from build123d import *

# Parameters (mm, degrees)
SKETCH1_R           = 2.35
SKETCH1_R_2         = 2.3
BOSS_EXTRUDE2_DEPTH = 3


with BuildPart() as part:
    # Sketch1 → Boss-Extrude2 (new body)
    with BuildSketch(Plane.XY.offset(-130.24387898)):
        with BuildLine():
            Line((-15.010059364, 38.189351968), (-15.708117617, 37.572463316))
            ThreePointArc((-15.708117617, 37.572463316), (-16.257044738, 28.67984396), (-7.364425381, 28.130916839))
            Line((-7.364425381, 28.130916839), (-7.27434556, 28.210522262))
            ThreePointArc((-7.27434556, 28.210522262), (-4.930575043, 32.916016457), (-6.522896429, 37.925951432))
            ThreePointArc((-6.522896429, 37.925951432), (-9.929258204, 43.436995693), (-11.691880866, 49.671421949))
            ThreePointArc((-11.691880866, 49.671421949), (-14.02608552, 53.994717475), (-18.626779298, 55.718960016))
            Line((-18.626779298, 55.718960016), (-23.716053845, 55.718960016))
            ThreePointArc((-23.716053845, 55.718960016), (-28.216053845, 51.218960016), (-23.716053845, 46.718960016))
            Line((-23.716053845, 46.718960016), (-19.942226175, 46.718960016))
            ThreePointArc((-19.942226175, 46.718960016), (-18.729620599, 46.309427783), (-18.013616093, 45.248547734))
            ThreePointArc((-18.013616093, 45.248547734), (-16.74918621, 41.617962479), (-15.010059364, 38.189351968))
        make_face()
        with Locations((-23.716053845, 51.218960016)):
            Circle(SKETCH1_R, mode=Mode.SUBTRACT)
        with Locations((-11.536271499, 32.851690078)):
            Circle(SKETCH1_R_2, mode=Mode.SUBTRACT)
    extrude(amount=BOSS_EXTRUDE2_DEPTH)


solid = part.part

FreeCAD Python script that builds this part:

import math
import FreeCAD as App
import Part
import Sketcher

V = App.Vector

doc = App.newDocument("Part")
body = doc.addObject("PartDesign::Body", "Body")

# Sketch on XY plane
sketch1 = doc.addObject("Sketcher::SketchObject", "Sketch")
body.addObject(sketch1)
sketch1.AttachmentSupport = (doc.XY_Plane, [""])
sketch1.MapMode = "FlatFace"
sketch1.AttachmentOffset = App.Placement(V(0, 0, -130.243879), App.Rotation())
sketch1.addGeometry([
    Part.LineSegment(V(-15.010059, 38.189352, 0), V(-15.708118, 37.572463, 0)),  # 0
    Part.ArcOfCircle(Part.Circle(V(-11.536271, 32.85169, 0), V(0, 0, 1), 6.3), math.radians(131.467705), math.radians(311.467705)),  # 1
    Part.LineSegment(V(-7.364425, 28.130917, 0), V(-7.274346, 28.210522, 0)),  # 2
    Part.ArcOfCircle(Part.Circle(V(-11.90973, 33.455826, 0), V(0, 0, 1), 7), math.radians(-48.532295), math.radians(39.686712)),  # 3
    Part.ArcOfCircle(Part.Circle(V(11.463728, 52.85169, 0), V(0, 0, 1), 23.372983), math.radians(-172.179735), math.radians(-140.313288)),  # 4
    Part.ArcOfCircle(Part.Circle(V(-18.626779, 48.71896, 0), V(0, 0, 1), 7), math.radians(7.820265), math.radians(90)),  # 5
    Part.LineSegment(V(-18.626779, 55.71896, 0), V(-23.716054, 55.71896, 0)),  # 6
    Part.ArcOfCircle(Part.Circle(V(-23.716054, 51.21896, 0), V(0, 0, 1), 4.5), math.radians(90), math.radians(270)),  # 7
    Part.LineSegment(V(-23.716054, 46.71896, 0), V(-19.942226, 46.71896, 0)),  # 8
    Part.ArcOfCircle(Part.Circle(V(-19.942226, 44.71896, 0), V(0, 0, 1), 2), math.radians(15.354704), math.radians(90)),  # 9
    Part.ArcOfCircle(Part.Circle(V(9.613728, 52.834893, 0), V(0, 0, 1), 28.650005), math.radians(-164.645296), math.radians(-149.257)),  # 10
    Part.Circle(V(-11.536271, 32.85169, 0), V(0, 0, 1), 2.3),  # 11
    Part.Circle(V(-23.716054, 51.21896, 0), V(0, 0, 1), 2.35),  # 12
], False)
sketch1.addConstraint([
    Sketcher.Constraint("Tangent", 0, 2, 1, 1),
    Sketcher.Constraint("Tangent", 1, 2, 2, 1),
    Sketcher.Constraint("Tangent", 2, 2, 3, 1),
    Sketcher.Constraint("Tangent", 3, 2, 4, 2),
    Sketcher.Constraint("Tangent", 4, 1, 5, 1),
    Sketcher.Constraint("Tangent", 5, 2, 6, 1),
    Sketcher.Constraint("Tangent", 6, 2, 7, 1),
    Sketcher.Constraint("Tangent", 7, 2, 8, 1),
    Sketcher.Constraint("Tangent", 8, 2, 9, 2),
    Sketcher.Constraint("Tangent", 9, 1, 10, 1),
    Sketcher.Constraint("Coincident", 10, 2, 0, 1),
    Sketcher.Constraint("Horizontal", 6),
    Sketcher.Constraint("Horizontal", 8),
    Sketcher.Constraint("Coincident", 11, 3, 1, 3),
    Sketcher.Constraint("Coincident", 12, 3, 7, 3),
    Sketcher.Constraint("Equal", 3, 5),
    Sketcher.Constraint("Parallel", 0, 2),
    Sketcher.Constraint("Radius", 3, 7.0),
    Sketcher.Constraint("Radius", 9, 2.0),
    Sketcher.Constraint("Diameter", 11, 4.6),
    Sketcher.Constraint("Diameter", 12, 4.7),
    Sketcher.Constraint("Radius", 1, 6.3),
    Sketcher.Constraint("Radius", 7, 4.5),
    Sketcher.Constraint("DistanceX", 1, 3, 4, 3, 23.0),
    Sketcher.Constraint("DistanceY", 1, 3, 4, 3, 20.0),
    Sketcher.Constraint("DistanceX", 10, 3, 4, 3, 1.85),
    Sketcher.Constraint("Radius", 4, 23.372983),
    Sketcher.Constraint("Radius", 10, 28.650005),
    Sketcher.Constraint("DistanceX", 9, 3, 1, 2, 12.577801),
    Sketcher.Constraint("DistanceX", 5, 3, 4, 1, 6.934898),
    Sketcher.Constraint("DistanceX", 6, 2, 6, 1, 5.089275),
    Sketcher.Constraint("DistanceX", 8, 1, 8, 2, 3.773828),
    Sketcher.Constraint("DistanceX", 1, 3, -1, 1, 11.536271),
    Sketcher.Constraint("DistanceY", -1, 1, 1, 3, 32.85169),
])
pad1 = doc.addObject("PartDesign::Pad", "Pad")
body.addObject(pad1)
pad1.Profile = sketch1
pad1.Length = 3

doc.recompute()
